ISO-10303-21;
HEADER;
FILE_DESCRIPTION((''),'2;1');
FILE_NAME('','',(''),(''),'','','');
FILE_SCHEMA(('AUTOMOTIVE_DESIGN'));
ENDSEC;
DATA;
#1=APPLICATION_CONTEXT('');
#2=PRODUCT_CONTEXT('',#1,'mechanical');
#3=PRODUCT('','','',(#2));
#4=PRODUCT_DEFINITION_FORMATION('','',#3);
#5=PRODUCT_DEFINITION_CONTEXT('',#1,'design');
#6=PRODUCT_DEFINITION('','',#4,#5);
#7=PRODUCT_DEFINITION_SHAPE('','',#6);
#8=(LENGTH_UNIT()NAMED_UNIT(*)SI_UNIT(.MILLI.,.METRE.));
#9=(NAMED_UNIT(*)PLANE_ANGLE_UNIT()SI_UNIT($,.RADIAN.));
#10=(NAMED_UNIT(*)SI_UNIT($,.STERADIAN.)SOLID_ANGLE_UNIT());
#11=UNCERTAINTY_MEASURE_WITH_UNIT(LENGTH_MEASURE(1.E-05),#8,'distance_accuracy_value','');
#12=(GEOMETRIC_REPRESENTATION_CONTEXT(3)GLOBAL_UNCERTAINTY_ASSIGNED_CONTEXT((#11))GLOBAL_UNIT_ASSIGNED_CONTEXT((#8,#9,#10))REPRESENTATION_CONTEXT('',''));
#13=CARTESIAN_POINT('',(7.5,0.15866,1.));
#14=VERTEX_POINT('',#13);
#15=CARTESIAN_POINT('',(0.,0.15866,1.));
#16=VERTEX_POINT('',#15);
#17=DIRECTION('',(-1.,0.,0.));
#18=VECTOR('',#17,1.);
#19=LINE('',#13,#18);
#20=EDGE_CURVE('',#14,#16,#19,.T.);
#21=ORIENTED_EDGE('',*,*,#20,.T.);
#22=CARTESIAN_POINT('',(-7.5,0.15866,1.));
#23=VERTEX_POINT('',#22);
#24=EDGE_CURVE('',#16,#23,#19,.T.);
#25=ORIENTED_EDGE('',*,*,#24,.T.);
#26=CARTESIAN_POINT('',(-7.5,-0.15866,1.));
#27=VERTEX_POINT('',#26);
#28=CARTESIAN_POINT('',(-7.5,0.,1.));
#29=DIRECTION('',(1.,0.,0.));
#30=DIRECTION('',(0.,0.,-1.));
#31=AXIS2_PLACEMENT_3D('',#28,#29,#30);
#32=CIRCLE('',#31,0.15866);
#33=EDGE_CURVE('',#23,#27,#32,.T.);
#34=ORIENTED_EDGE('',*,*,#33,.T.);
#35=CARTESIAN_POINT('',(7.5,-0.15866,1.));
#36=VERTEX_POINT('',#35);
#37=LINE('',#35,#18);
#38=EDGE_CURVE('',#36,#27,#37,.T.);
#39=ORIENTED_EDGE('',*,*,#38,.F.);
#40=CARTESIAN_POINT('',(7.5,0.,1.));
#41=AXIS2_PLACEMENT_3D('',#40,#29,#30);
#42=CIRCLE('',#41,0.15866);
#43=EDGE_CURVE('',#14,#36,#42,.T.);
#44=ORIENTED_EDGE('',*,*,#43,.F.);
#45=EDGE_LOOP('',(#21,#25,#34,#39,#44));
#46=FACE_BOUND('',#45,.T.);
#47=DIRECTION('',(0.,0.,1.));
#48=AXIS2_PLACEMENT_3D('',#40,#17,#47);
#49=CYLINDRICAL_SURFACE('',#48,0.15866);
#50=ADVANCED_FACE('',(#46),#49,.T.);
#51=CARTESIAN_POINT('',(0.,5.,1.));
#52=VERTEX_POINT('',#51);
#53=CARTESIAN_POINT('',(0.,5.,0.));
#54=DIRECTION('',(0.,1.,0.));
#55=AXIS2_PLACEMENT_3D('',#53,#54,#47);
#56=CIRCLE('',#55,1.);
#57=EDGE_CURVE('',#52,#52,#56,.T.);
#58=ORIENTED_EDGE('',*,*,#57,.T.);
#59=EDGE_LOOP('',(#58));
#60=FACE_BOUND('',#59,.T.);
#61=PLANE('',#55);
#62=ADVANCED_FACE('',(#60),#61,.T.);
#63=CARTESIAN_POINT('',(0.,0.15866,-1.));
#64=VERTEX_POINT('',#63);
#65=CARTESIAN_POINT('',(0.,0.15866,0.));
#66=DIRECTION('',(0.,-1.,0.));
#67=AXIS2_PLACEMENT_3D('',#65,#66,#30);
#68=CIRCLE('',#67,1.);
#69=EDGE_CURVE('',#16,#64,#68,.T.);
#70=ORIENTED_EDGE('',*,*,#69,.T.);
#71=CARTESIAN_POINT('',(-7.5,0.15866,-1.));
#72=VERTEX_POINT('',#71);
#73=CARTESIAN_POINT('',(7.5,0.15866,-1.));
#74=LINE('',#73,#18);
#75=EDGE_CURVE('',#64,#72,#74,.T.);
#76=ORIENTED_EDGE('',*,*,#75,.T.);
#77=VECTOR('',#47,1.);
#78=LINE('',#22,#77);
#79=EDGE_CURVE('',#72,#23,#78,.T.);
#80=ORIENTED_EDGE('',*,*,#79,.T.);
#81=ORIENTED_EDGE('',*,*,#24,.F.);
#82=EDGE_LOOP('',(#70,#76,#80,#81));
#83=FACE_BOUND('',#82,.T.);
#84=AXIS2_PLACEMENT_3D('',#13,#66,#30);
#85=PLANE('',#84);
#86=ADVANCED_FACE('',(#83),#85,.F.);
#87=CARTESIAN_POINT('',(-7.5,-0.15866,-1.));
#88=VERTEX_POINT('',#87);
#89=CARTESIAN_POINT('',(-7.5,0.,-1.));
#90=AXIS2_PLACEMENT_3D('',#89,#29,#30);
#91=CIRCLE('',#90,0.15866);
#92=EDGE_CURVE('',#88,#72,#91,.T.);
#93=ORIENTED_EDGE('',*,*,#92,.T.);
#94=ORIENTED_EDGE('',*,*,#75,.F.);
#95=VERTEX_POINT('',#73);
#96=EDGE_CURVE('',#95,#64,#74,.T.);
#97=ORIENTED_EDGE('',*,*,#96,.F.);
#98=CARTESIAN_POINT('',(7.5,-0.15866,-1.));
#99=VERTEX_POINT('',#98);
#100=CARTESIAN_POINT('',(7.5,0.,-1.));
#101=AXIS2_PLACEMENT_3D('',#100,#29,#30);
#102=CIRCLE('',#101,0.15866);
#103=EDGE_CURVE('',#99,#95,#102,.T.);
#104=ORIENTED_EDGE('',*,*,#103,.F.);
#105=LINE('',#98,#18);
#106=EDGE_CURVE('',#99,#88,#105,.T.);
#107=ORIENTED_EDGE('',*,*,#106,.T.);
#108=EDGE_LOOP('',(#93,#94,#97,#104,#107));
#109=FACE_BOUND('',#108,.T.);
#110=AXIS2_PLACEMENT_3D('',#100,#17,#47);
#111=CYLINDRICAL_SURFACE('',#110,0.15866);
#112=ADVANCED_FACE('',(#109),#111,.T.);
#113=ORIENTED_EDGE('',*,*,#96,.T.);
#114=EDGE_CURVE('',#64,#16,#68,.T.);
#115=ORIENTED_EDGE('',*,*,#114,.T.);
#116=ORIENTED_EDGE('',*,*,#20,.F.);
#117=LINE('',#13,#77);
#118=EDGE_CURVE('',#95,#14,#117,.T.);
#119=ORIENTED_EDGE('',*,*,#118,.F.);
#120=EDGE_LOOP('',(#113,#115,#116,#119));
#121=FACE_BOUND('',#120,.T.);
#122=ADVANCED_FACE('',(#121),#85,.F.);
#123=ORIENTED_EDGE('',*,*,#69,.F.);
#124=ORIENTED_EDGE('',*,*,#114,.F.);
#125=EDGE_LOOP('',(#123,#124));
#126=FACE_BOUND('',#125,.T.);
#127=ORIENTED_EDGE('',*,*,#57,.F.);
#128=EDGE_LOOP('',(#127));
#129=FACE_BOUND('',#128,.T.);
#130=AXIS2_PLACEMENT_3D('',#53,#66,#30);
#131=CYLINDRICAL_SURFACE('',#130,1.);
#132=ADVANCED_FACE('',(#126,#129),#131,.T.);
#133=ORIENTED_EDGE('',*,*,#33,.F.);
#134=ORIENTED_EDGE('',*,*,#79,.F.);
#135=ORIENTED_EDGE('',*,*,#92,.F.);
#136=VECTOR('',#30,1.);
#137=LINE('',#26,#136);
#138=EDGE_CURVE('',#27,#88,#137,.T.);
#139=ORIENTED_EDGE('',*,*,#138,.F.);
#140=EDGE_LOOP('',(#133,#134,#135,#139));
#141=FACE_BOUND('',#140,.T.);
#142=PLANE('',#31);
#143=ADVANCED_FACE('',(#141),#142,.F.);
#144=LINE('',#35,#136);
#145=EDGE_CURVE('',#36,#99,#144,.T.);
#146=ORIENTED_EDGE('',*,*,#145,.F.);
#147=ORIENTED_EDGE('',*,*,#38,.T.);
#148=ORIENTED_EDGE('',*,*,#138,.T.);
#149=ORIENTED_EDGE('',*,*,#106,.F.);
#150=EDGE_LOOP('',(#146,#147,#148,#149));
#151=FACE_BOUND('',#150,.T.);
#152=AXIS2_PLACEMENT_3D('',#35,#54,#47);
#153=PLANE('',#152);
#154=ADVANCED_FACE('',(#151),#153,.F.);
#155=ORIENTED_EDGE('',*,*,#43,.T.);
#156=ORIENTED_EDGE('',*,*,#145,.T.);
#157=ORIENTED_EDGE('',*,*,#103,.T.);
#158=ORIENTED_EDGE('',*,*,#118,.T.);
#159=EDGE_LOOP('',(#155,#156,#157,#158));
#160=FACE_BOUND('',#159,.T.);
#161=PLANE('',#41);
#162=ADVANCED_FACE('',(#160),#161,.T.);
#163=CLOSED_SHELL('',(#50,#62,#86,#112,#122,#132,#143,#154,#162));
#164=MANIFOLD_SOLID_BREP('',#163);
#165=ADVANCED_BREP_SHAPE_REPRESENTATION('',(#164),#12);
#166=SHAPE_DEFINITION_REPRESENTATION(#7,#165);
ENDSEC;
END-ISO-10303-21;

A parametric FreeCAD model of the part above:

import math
import FreeCAD as App
import Part
import Sketcher
Q = App.Units.Quantity

doc = App.newDocument("Part")
body = doc.addObject("PartDesign::Body", "Body")

# Sketch on XZ plane
sketch1 = body.newObject("Sketcher::SketchObject", "Sketch")
sketch1.AttachmentSupport = (doc.getObject("XZ_Plane"), [""])
sketch1.MapMode = "FlatFace"
sketch1.addGeometry(Part.Circle(App.Vector(0, 0, 0), App.Vector(0, 0, 1), 1), False)
sketch1.addConstraint(Sketcher.Constraint("Coincident", 0, 3, -1, 1))
sketch1.addConstraint(Sketcher.Constraint("Diameter", 0, Q("2 mm")))
pad1 = body.newObject("PartDesign::Pad", "Pad")
pad1.Profile = sketch1
pad1.Length = 5
pad1.Reversed = True

# Sketch on YZ plane
sketch2 = body.newObject("Sketcher::SketchObject", "Sketch001")
sketch2.AttachmentSupport = (doc.getObject("YZ_Plane"), [""])
sketch2.MapMode = "FlatFace"
sketch2.addGeometry(Part.LineSegment(App.Vector(0.15866, -1, 0), App.Vector(0.15866, 1, 0)), False)
sketch2.addGeometry(Part.ArcOfCircle(Part.Circle(App.Vector(0, 1, 0), App.Vector(0, 0, 1), 0.15866), math.radians(0), math.radians(180)), False)
sketch2.addGeometry(Part.LineSegment(App.Vector(-0.15866, 1, 0), App.Vector(-0.15866, -1, 0)), False)
sketch2.addGeometry(Part.ArcOfCircle(Part.Circle(App.Vector(0, -1, 0), App.Vector(0, 0, 1), 0.15866), math.radians(180), math.radians(360)), False)
sketch2.addConstraint(Sketcher.Constraint("Tangent", 0, 2, 1, 1))
sketch2.addConstraint(Sketcher.Constraint("Tangent", 1, 2, 2, 1))
sketch2.addConstraint(Sketcher.Constraint("Tangent", 2, 2, 3, 1))
sketch2.addConstraint(Sketcher.Constraint("Tangent", 3, 2, 0, 1))
sketch2.addConstraint(Sketcher.Constraint("Vertical", 0))
sketch2.addConstraint(Sketcher.Constraint("Vertical", 2))
sketch2.addConstraint(Sketcher.Constraint("Symmetric", 1, 3, 3, 3, -1, 1))
sketch2.addConstraint(Sketcher.Constraint("DistanceY", 0, 1, 0, 2, Q("2 mm")))
sketch2.addConstraint(Sketcher.Constraint("Radius", 1, Q("0.15866 mm")))
pad2 = body.newObject("PartDesign::Pad", "Pad001")
pad2.Profile = sketch2
pad2.Length = 15
pad2.Midplane = True

doc.recompute()
